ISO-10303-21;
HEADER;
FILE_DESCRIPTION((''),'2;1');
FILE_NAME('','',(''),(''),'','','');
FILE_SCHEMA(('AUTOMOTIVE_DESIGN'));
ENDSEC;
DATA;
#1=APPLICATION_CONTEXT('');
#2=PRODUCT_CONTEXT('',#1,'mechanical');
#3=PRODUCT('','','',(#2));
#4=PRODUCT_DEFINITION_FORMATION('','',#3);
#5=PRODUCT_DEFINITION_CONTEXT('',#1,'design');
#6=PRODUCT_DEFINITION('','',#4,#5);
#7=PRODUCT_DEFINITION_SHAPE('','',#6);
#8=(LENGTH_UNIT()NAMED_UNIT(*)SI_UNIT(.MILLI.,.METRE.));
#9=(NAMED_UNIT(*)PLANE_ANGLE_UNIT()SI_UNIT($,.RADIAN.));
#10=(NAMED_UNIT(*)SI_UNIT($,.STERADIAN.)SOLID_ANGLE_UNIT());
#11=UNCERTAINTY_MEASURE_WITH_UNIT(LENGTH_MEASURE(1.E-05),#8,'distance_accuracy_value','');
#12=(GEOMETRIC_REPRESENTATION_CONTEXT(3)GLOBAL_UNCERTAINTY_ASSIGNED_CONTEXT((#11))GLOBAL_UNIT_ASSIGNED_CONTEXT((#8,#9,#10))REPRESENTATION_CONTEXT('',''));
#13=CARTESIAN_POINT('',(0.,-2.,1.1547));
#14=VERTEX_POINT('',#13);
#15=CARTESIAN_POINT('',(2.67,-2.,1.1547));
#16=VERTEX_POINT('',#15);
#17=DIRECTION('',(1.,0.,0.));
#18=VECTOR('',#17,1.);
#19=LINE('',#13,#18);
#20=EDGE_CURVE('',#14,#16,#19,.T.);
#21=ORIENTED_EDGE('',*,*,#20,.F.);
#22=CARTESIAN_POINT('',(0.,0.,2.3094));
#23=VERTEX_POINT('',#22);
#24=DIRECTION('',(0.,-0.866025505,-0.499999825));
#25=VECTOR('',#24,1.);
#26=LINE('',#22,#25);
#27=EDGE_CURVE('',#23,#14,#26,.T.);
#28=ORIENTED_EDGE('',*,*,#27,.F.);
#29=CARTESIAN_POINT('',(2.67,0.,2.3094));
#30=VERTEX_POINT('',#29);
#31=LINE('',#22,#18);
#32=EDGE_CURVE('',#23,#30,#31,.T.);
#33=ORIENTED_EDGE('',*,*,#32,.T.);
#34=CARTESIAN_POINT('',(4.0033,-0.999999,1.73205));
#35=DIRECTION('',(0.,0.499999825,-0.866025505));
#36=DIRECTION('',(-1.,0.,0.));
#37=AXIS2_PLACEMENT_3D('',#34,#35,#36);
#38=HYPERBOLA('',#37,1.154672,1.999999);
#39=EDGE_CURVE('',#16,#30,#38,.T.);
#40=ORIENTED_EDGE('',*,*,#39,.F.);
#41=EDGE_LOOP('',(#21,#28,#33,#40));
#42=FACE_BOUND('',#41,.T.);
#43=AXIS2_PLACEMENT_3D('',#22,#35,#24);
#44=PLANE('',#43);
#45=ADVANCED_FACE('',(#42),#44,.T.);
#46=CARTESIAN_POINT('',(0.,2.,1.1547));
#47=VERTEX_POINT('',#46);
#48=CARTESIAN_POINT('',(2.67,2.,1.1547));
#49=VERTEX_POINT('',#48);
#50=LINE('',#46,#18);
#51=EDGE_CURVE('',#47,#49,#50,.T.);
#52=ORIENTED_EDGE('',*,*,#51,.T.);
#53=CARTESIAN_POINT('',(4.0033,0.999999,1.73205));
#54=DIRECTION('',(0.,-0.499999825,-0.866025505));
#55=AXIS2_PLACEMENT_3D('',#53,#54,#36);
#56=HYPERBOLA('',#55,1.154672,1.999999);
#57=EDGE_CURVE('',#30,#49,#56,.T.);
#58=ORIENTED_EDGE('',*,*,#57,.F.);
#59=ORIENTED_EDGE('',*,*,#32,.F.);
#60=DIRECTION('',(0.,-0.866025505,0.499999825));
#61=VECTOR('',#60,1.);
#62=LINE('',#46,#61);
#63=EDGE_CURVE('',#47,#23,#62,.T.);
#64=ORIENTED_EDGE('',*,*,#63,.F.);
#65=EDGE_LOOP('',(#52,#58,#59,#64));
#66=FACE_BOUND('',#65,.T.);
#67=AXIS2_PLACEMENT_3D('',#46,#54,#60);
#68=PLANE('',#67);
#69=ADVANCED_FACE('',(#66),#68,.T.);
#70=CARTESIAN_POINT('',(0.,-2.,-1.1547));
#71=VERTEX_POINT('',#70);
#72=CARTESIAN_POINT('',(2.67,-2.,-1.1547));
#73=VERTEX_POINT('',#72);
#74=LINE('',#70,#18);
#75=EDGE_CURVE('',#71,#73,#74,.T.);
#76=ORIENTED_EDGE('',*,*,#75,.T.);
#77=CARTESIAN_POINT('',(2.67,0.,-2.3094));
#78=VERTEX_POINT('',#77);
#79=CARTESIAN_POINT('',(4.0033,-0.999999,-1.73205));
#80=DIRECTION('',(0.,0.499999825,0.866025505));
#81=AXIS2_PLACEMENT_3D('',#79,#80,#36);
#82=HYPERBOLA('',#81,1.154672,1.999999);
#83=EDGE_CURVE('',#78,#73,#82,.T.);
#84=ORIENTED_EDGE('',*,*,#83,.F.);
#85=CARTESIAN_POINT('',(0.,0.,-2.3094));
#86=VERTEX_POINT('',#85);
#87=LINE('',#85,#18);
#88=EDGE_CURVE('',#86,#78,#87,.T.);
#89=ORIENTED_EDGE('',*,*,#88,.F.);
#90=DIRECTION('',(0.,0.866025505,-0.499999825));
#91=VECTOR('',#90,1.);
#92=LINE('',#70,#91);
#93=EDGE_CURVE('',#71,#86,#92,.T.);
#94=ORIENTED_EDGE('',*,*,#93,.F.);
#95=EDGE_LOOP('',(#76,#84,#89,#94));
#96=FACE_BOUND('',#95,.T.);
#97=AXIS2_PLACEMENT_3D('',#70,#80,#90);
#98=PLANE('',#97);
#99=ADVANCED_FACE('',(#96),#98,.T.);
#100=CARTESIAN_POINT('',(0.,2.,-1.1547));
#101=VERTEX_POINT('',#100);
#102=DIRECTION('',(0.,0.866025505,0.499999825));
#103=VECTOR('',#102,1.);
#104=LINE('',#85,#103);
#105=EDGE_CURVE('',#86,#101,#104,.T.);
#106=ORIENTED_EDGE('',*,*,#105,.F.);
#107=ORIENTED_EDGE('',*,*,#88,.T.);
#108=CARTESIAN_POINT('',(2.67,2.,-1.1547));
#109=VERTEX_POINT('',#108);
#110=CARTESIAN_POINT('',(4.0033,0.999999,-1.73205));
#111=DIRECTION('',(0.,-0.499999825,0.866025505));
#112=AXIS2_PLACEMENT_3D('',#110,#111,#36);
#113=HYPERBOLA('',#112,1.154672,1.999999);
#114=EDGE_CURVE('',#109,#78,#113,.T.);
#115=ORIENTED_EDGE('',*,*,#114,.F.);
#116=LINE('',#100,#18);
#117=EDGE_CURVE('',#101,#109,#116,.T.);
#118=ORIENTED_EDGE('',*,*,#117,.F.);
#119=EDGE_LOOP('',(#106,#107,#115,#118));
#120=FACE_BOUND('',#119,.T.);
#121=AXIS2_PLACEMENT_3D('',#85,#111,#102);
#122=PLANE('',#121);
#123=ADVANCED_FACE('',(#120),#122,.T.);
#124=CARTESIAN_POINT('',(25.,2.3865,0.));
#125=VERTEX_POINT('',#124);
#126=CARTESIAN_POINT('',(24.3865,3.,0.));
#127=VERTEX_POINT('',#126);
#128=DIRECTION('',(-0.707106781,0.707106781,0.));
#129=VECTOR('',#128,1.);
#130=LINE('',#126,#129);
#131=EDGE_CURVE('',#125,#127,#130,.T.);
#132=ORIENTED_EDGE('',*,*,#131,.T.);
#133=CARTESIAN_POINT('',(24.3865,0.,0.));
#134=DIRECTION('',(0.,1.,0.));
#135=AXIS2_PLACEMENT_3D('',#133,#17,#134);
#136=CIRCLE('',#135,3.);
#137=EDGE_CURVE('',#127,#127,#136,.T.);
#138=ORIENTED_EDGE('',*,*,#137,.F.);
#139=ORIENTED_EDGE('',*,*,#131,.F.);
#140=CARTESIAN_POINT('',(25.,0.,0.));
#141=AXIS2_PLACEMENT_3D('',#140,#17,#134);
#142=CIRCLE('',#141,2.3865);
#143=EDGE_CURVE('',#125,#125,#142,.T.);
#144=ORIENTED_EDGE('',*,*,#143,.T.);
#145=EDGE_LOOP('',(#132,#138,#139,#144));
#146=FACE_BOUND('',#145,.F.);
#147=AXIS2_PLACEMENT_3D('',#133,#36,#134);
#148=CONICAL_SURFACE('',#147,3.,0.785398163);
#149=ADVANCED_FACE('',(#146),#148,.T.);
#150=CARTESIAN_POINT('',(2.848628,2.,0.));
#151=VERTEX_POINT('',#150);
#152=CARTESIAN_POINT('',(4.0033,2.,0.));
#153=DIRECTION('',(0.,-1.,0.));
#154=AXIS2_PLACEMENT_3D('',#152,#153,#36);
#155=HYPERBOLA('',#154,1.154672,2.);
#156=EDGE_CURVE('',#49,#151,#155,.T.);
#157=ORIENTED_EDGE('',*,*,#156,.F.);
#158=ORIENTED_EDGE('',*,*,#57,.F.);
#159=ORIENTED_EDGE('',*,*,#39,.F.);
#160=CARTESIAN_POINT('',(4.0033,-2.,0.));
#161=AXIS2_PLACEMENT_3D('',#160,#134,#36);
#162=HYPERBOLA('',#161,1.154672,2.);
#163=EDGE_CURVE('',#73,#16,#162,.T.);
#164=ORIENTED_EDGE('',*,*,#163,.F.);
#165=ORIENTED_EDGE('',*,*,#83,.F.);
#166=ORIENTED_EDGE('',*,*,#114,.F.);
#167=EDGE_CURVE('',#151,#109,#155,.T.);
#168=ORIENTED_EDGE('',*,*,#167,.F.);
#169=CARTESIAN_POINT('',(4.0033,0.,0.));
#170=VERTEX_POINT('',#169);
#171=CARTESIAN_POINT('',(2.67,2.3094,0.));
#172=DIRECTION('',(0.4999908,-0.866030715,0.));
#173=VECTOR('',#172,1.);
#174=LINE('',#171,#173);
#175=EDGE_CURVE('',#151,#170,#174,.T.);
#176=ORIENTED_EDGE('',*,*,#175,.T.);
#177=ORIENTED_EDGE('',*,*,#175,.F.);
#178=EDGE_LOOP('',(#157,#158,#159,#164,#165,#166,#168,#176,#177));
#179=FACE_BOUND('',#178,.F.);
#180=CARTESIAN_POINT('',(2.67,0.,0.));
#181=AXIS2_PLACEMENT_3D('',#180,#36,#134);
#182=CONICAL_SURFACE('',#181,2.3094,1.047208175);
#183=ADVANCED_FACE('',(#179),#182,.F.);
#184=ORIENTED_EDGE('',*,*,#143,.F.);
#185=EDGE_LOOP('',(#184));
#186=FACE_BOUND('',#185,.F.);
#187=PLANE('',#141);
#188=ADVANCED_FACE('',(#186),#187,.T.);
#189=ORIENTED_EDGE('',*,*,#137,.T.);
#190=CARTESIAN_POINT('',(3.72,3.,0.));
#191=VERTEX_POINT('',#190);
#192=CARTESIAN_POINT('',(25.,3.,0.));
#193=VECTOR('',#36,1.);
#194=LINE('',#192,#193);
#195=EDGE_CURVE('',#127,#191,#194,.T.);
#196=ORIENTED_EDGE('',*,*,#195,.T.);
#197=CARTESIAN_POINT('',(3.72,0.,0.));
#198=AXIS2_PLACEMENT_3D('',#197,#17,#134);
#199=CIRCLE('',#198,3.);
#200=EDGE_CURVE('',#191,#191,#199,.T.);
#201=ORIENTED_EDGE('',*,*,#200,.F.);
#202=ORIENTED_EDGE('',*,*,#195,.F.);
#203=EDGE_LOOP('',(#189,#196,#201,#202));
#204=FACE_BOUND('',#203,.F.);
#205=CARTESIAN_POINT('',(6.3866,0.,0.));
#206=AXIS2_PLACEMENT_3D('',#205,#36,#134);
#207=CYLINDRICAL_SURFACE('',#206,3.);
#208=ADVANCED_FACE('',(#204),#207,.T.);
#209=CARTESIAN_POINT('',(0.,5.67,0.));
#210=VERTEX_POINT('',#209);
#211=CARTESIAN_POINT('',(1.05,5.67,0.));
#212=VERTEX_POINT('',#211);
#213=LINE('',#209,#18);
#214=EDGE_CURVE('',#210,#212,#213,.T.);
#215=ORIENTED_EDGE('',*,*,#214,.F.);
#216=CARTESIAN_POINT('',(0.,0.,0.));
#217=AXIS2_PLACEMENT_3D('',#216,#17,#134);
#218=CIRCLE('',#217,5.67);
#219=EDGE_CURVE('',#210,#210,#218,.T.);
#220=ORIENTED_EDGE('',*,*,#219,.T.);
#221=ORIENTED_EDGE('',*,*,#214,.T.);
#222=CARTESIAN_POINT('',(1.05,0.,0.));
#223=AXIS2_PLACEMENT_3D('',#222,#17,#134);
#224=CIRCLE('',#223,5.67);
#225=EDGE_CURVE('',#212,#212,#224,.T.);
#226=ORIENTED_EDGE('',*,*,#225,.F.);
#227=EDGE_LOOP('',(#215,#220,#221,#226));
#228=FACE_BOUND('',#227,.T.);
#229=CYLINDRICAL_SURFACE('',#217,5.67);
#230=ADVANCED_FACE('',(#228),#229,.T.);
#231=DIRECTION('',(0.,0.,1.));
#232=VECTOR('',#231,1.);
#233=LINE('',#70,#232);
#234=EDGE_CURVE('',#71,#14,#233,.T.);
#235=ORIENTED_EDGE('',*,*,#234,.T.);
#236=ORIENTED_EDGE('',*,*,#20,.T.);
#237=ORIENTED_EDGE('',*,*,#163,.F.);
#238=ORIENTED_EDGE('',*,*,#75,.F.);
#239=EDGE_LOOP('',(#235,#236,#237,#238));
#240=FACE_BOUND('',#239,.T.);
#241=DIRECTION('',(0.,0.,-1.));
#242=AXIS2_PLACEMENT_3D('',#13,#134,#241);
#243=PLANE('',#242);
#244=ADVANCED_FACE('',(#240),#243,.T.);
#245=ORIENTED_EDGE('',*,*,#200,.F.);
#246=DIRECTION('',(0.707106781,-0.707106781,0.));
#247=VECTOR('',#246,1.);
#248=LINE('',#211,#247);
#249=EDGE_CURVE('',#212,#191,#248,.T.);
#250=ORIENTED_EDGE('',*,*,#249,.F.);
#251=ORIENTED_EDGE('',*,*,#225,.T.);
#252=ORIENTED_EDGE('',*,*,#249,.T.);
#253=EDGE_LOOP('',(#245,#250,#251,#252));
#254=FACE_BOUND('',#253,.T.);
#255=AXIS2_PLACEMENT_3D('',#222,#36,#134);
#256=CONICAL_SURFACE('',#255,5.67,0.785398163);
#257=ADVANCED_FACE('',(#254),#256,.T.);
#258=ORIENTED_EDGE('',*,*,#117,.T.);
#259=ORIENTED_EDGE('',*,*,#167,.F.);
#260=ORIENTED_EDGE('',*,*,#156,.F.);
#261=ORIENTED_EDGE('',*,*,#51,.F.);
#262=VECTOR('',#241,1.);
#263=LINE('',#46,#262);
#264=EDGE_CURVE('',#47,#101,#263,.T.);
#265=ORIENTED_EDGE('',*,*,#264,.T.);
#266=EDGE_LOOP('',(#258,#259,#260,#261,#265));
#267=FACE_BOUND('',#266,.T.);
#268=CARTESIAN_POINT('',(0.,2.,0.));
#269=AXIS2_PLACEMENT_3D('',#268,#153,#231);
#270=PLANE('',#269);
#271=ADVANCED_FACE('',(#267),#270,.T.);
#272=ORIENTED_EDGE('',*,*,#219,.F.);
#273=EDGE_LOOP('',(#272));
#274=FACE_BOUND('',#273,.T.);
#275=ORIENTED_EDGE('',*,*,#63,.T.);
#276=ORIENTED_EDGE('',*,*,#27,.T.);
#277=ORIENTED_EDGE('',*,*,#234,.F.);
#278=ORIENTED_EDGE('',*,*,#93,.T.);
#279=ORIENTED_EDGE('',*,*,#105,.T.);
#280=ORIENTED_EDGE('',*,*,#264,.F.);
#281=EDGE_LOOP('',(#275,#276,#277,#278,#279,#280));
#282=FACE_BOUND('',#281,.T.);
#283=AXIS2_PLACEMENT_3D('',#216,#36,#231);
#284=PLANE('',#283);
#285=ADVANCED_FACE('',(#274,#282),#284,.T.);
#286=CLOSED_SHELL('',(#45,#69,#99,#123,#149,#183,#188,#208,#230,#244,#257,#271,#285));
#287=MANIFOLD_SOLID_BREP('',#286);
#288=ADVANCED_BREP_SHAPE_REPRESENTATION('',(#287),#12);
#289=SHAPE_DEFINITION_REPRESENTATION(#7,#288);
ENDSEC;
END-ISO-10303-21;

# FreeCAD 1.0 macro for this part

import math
import FreeCAD as App
import Part
import Sketcher
Q = App.Units.Quantity


def edges_at(feature, points):
    """Names of the edges that pass closest to the given points."""
    edges = feature.Shape.Edges
    near = lambda p: min(range(len(edges)), key=lambda i: edges[i].distToShape(Part.Vertex(*p))[0])
    return sorted({f"Edge{near(p) + 1}" for p in points})


def add_polygon(sketch, points):
    """Adds a closed chain of lines whose ends are joined by coincident constraints."""
    first, n = sketch.GeometryCount, len(points)
    for a, b in zip(points, points[1:] + points[:1]):
        sketch.addGeometry(Part.LineSegment(App.Vector(*a, 0), App.Vector(*b, 0)), False)
    for i in range(n):
        sketch.addConstraint(Sketcher.Constraint("Coincident", first + i, 2, first + (i + 1) % n, 1))

doc = App.newDocument("Part")
body = doc.addObject("PartDesign::Body", "Body")

# Sketch on XY plane
sketch1 = doc.addObject("Sketcher::SketchObject", "Sketch")
body.addObject(sketch1)
sketch1.AttachmentSupport = (doc.XY_Plane, [""])
sketch1.MapMode = "FlatFace"
add_polygon(sketch1, [(4, 0), (25, 0), (25, 3), (3.7, 3), (1.1, 5.7), (0, 5.7), (0, 2.3), (2.7, 2.3)])  # lines 0-7
sketch1.addConstraint([
    Sketcher.Constraint("Horizontal", 0),
    Sketcher.Constraint("Vertical", 1),
    Sketcher.Constraint("Horizontal", 2),
    Sketcher.Constraint("Horizontal", 4),
    Sketcher.Constraint("Vertical", 5),
    Sketcher.Constraint("Horizontal", 6),
    Sketcher.Constraint("PointOnObject", 0, 2, -1),
    Sketcher.Constraint("PointOnObject", 4, 2, -2),
    Sketcher.Constraint("DistanceX", -1, 1, 0, 2, Q("25 mm")),
    Sketcher.Constraint("DistanceX", 6, 1, 6, 2, Q("2.67 mm")),
    Sketcher.Constraint("DistanceY", 1, 1, 1, 2, Q("3 mm")),
    Sketcher.Constraint("DistanceX", -1, 1, 2, 2, Q("3.72 mm")),
    Sketcher.Constraint("Angle", 3, Q("135 deg")),
    Sketcher.Constraint("Angle", 7, Q("-60.0006 deg")),
    Sketcher.Constraint("DistanceX", 3, 2, 2, 2, Q("2.67 mm")),
    Sketcher.Constraint("DistanceX", 0, 1, 0, 2, Q("20.9967 mm")),
])
revolution = doc.addObject("PartDesign::Revolution", "Revolution")
body.addObject(revolution)
revolution.Profile = sketch1
revolution.ReferenceAxis = (sketch1, ["H_Axis"])
revolution.Angle = 360

# Sketch on YZ plane
sketch2 = doc.addObject("Sketcher::SketchObject", "Sketch001")
body.addObject(sketch2)
sketch2.AttachmentSupport = (doc.YZ_Plane, [""])
sketch2.MapMode = "FlatFace"
sketch2.addGeometry([
    Part.LineSegment(App.Vector(2, 1.2, 0), App.Vector(0, 2.3, 0)),  # 0
    Part.ArcOfCircle(Part.Circle(App.Vector(0, 0, 0), App.Vector(0, 0, 1), 2.3), math.radians(30), math.radians(90)),  # 1
    Part.ArcOfCircle(Part.Circle(App.Vector(0, 0, 0), App.Vector(0, 0, 1), 2.3), math.radians(90), math.radians(150)),  # 2
    Part.LineSegment(App.Vector(0, 2.3, 0), App.Vector(-2, 1.2, 0)),  # 3
    Part.ArcOfCircle(Part.Circle(App.Vector(0, 0, 0), App.Vector(0, 0, 1), 2.3), math.radians(-30), math.radians(30)),  # 4
    Part.LineSegment(App.Vector(2, -1.2, 0), App.Vector(2, 1.2, 0)),  # 5
    Part.LineSegment(App.Vector(-2, 1.2, 0), App.Vector(-2, -1.2, 0)),  # 6
    Part.ArcOfCircle(Part.Circle(App.Vector(0, 0, 0), App.Vector(0, 0, 1), 2.3), math.radians(150), math.radians(210)),  # 7
    Part.LineSegment(App.Vector(-2, -1.2, 0), App.Vector(0, -2.3, 0)),  # 8
    Part.ArcOfCircle(Part.Circle(App.Vector(0, 0, 0), App.Vector(0, 0, 1), 2.3), math.radians(-150), math.radians(-90)),  # 9
    Part.ArcOfCircle(Part.Circle(App.Vector(0, 0, 0), App.Vector(0, 0, 1), 2.3), math.radians(-90), math.radians(-30)),  # 10
    Part.LineSegment(App.Vector(0, -2.3, 0), App.Vector(2, -1.2, 0)),  # 11
], False)
sketch2.addConstraint([
    Sketcher.Constraint("Coincident", 0, 1, 1, 1),
    Sketcher.Constraint("Coincident", 1, 2, 0, 2),
    Sketcher.Constraint("Coincident", 2, 1, 3, 1),
    Sketcher.Constraint("Coincident", 3, 2, 2, 2),
    Sketcher.Constraint("Coincident", 4, 1, 5, 1),
    Sketcher.Constraint("Coincident", 5, 2, 4, 2),
    Sketcher.Constraint("Coincident", 6, 1, 7, 1),
    Sketcher.Constraint("Coincident", 7, 2, 6, 2),
    Sketcher.Constraint("Coincident", 8, 1, 9, 1),
    Sketcher.Constraint("Coincident", 9, 2, 8, 2),
    Sketcher.Constraint("Coincident", 10, 1, 11, 1),
    Sketcher.Constraint("Coincident", 11, 2, 10, 2),
    Sketcher.Constraint("Vertical", 5),
    Sketcher.Constraint("Vertical", 6),
    Sketcher.Constraint("Coincident", 1, 3, -1, 1),
    Sketcher.Constraint("Coincident", 2, 3, -1, 1),
    Sketcher.Constraint("Coincident", 4, 3, -1, 1),
    Sketcher.Constraint("Coincident", 7, 3, -1, 1),
    Sketcher.Constraint("Coincident", 9, 3, -1, 1),
    Sketcher.Constraint("Coincident", 10, 3, -1, 1),
    Sketcher.Constraint("Coincident", 2, 1, 1, 2),
    Sketcher.Constraint("Coincident", 5, 2, 0, 1),
    Sketcher.Constraint("Coincident", 6, 1, 3, 2),
    Sketcher.Constraint("Coincident", 8, 1, 7, 2),
    Sketcher.Constraint("Coincident", 10, 1, 9, 2),
    Sketcher.Constraint("PointOnObject", 1, 2, -2),
    Sketcher.Constraint("PointOnObject", 9, 2, -2),
    Sketcher.Constraint("Parallel", 0, 8),
    Sketcher.Constraint("Parallel", 3, 11),
    Sketcher.Constraint("Angle", 0, Q("150 deg")),
    Sketcher.Constraint("DistanceX", -1, 1, 0, 1, Q("2 mm")),
])
pad1 = doc.addObject("PartDesign::Pad", "Pad")
body.addObject(pad1)
pad1.Profile = sketch2
pad1.Length = 2.8486
doc.recompute()

chamfer = doc.addObject("PartDesign::Chamfer", "Chamfer")
body.addObject(chamfer)
chamfer.Base = (pad1, edges_at(pad1, [(25, -3, 0)]))
chamfer.ChamferType = "Two distances"
chamfer.Size = 0.6135
chamfer.Size2 = 0.6135

doc.recompute()
